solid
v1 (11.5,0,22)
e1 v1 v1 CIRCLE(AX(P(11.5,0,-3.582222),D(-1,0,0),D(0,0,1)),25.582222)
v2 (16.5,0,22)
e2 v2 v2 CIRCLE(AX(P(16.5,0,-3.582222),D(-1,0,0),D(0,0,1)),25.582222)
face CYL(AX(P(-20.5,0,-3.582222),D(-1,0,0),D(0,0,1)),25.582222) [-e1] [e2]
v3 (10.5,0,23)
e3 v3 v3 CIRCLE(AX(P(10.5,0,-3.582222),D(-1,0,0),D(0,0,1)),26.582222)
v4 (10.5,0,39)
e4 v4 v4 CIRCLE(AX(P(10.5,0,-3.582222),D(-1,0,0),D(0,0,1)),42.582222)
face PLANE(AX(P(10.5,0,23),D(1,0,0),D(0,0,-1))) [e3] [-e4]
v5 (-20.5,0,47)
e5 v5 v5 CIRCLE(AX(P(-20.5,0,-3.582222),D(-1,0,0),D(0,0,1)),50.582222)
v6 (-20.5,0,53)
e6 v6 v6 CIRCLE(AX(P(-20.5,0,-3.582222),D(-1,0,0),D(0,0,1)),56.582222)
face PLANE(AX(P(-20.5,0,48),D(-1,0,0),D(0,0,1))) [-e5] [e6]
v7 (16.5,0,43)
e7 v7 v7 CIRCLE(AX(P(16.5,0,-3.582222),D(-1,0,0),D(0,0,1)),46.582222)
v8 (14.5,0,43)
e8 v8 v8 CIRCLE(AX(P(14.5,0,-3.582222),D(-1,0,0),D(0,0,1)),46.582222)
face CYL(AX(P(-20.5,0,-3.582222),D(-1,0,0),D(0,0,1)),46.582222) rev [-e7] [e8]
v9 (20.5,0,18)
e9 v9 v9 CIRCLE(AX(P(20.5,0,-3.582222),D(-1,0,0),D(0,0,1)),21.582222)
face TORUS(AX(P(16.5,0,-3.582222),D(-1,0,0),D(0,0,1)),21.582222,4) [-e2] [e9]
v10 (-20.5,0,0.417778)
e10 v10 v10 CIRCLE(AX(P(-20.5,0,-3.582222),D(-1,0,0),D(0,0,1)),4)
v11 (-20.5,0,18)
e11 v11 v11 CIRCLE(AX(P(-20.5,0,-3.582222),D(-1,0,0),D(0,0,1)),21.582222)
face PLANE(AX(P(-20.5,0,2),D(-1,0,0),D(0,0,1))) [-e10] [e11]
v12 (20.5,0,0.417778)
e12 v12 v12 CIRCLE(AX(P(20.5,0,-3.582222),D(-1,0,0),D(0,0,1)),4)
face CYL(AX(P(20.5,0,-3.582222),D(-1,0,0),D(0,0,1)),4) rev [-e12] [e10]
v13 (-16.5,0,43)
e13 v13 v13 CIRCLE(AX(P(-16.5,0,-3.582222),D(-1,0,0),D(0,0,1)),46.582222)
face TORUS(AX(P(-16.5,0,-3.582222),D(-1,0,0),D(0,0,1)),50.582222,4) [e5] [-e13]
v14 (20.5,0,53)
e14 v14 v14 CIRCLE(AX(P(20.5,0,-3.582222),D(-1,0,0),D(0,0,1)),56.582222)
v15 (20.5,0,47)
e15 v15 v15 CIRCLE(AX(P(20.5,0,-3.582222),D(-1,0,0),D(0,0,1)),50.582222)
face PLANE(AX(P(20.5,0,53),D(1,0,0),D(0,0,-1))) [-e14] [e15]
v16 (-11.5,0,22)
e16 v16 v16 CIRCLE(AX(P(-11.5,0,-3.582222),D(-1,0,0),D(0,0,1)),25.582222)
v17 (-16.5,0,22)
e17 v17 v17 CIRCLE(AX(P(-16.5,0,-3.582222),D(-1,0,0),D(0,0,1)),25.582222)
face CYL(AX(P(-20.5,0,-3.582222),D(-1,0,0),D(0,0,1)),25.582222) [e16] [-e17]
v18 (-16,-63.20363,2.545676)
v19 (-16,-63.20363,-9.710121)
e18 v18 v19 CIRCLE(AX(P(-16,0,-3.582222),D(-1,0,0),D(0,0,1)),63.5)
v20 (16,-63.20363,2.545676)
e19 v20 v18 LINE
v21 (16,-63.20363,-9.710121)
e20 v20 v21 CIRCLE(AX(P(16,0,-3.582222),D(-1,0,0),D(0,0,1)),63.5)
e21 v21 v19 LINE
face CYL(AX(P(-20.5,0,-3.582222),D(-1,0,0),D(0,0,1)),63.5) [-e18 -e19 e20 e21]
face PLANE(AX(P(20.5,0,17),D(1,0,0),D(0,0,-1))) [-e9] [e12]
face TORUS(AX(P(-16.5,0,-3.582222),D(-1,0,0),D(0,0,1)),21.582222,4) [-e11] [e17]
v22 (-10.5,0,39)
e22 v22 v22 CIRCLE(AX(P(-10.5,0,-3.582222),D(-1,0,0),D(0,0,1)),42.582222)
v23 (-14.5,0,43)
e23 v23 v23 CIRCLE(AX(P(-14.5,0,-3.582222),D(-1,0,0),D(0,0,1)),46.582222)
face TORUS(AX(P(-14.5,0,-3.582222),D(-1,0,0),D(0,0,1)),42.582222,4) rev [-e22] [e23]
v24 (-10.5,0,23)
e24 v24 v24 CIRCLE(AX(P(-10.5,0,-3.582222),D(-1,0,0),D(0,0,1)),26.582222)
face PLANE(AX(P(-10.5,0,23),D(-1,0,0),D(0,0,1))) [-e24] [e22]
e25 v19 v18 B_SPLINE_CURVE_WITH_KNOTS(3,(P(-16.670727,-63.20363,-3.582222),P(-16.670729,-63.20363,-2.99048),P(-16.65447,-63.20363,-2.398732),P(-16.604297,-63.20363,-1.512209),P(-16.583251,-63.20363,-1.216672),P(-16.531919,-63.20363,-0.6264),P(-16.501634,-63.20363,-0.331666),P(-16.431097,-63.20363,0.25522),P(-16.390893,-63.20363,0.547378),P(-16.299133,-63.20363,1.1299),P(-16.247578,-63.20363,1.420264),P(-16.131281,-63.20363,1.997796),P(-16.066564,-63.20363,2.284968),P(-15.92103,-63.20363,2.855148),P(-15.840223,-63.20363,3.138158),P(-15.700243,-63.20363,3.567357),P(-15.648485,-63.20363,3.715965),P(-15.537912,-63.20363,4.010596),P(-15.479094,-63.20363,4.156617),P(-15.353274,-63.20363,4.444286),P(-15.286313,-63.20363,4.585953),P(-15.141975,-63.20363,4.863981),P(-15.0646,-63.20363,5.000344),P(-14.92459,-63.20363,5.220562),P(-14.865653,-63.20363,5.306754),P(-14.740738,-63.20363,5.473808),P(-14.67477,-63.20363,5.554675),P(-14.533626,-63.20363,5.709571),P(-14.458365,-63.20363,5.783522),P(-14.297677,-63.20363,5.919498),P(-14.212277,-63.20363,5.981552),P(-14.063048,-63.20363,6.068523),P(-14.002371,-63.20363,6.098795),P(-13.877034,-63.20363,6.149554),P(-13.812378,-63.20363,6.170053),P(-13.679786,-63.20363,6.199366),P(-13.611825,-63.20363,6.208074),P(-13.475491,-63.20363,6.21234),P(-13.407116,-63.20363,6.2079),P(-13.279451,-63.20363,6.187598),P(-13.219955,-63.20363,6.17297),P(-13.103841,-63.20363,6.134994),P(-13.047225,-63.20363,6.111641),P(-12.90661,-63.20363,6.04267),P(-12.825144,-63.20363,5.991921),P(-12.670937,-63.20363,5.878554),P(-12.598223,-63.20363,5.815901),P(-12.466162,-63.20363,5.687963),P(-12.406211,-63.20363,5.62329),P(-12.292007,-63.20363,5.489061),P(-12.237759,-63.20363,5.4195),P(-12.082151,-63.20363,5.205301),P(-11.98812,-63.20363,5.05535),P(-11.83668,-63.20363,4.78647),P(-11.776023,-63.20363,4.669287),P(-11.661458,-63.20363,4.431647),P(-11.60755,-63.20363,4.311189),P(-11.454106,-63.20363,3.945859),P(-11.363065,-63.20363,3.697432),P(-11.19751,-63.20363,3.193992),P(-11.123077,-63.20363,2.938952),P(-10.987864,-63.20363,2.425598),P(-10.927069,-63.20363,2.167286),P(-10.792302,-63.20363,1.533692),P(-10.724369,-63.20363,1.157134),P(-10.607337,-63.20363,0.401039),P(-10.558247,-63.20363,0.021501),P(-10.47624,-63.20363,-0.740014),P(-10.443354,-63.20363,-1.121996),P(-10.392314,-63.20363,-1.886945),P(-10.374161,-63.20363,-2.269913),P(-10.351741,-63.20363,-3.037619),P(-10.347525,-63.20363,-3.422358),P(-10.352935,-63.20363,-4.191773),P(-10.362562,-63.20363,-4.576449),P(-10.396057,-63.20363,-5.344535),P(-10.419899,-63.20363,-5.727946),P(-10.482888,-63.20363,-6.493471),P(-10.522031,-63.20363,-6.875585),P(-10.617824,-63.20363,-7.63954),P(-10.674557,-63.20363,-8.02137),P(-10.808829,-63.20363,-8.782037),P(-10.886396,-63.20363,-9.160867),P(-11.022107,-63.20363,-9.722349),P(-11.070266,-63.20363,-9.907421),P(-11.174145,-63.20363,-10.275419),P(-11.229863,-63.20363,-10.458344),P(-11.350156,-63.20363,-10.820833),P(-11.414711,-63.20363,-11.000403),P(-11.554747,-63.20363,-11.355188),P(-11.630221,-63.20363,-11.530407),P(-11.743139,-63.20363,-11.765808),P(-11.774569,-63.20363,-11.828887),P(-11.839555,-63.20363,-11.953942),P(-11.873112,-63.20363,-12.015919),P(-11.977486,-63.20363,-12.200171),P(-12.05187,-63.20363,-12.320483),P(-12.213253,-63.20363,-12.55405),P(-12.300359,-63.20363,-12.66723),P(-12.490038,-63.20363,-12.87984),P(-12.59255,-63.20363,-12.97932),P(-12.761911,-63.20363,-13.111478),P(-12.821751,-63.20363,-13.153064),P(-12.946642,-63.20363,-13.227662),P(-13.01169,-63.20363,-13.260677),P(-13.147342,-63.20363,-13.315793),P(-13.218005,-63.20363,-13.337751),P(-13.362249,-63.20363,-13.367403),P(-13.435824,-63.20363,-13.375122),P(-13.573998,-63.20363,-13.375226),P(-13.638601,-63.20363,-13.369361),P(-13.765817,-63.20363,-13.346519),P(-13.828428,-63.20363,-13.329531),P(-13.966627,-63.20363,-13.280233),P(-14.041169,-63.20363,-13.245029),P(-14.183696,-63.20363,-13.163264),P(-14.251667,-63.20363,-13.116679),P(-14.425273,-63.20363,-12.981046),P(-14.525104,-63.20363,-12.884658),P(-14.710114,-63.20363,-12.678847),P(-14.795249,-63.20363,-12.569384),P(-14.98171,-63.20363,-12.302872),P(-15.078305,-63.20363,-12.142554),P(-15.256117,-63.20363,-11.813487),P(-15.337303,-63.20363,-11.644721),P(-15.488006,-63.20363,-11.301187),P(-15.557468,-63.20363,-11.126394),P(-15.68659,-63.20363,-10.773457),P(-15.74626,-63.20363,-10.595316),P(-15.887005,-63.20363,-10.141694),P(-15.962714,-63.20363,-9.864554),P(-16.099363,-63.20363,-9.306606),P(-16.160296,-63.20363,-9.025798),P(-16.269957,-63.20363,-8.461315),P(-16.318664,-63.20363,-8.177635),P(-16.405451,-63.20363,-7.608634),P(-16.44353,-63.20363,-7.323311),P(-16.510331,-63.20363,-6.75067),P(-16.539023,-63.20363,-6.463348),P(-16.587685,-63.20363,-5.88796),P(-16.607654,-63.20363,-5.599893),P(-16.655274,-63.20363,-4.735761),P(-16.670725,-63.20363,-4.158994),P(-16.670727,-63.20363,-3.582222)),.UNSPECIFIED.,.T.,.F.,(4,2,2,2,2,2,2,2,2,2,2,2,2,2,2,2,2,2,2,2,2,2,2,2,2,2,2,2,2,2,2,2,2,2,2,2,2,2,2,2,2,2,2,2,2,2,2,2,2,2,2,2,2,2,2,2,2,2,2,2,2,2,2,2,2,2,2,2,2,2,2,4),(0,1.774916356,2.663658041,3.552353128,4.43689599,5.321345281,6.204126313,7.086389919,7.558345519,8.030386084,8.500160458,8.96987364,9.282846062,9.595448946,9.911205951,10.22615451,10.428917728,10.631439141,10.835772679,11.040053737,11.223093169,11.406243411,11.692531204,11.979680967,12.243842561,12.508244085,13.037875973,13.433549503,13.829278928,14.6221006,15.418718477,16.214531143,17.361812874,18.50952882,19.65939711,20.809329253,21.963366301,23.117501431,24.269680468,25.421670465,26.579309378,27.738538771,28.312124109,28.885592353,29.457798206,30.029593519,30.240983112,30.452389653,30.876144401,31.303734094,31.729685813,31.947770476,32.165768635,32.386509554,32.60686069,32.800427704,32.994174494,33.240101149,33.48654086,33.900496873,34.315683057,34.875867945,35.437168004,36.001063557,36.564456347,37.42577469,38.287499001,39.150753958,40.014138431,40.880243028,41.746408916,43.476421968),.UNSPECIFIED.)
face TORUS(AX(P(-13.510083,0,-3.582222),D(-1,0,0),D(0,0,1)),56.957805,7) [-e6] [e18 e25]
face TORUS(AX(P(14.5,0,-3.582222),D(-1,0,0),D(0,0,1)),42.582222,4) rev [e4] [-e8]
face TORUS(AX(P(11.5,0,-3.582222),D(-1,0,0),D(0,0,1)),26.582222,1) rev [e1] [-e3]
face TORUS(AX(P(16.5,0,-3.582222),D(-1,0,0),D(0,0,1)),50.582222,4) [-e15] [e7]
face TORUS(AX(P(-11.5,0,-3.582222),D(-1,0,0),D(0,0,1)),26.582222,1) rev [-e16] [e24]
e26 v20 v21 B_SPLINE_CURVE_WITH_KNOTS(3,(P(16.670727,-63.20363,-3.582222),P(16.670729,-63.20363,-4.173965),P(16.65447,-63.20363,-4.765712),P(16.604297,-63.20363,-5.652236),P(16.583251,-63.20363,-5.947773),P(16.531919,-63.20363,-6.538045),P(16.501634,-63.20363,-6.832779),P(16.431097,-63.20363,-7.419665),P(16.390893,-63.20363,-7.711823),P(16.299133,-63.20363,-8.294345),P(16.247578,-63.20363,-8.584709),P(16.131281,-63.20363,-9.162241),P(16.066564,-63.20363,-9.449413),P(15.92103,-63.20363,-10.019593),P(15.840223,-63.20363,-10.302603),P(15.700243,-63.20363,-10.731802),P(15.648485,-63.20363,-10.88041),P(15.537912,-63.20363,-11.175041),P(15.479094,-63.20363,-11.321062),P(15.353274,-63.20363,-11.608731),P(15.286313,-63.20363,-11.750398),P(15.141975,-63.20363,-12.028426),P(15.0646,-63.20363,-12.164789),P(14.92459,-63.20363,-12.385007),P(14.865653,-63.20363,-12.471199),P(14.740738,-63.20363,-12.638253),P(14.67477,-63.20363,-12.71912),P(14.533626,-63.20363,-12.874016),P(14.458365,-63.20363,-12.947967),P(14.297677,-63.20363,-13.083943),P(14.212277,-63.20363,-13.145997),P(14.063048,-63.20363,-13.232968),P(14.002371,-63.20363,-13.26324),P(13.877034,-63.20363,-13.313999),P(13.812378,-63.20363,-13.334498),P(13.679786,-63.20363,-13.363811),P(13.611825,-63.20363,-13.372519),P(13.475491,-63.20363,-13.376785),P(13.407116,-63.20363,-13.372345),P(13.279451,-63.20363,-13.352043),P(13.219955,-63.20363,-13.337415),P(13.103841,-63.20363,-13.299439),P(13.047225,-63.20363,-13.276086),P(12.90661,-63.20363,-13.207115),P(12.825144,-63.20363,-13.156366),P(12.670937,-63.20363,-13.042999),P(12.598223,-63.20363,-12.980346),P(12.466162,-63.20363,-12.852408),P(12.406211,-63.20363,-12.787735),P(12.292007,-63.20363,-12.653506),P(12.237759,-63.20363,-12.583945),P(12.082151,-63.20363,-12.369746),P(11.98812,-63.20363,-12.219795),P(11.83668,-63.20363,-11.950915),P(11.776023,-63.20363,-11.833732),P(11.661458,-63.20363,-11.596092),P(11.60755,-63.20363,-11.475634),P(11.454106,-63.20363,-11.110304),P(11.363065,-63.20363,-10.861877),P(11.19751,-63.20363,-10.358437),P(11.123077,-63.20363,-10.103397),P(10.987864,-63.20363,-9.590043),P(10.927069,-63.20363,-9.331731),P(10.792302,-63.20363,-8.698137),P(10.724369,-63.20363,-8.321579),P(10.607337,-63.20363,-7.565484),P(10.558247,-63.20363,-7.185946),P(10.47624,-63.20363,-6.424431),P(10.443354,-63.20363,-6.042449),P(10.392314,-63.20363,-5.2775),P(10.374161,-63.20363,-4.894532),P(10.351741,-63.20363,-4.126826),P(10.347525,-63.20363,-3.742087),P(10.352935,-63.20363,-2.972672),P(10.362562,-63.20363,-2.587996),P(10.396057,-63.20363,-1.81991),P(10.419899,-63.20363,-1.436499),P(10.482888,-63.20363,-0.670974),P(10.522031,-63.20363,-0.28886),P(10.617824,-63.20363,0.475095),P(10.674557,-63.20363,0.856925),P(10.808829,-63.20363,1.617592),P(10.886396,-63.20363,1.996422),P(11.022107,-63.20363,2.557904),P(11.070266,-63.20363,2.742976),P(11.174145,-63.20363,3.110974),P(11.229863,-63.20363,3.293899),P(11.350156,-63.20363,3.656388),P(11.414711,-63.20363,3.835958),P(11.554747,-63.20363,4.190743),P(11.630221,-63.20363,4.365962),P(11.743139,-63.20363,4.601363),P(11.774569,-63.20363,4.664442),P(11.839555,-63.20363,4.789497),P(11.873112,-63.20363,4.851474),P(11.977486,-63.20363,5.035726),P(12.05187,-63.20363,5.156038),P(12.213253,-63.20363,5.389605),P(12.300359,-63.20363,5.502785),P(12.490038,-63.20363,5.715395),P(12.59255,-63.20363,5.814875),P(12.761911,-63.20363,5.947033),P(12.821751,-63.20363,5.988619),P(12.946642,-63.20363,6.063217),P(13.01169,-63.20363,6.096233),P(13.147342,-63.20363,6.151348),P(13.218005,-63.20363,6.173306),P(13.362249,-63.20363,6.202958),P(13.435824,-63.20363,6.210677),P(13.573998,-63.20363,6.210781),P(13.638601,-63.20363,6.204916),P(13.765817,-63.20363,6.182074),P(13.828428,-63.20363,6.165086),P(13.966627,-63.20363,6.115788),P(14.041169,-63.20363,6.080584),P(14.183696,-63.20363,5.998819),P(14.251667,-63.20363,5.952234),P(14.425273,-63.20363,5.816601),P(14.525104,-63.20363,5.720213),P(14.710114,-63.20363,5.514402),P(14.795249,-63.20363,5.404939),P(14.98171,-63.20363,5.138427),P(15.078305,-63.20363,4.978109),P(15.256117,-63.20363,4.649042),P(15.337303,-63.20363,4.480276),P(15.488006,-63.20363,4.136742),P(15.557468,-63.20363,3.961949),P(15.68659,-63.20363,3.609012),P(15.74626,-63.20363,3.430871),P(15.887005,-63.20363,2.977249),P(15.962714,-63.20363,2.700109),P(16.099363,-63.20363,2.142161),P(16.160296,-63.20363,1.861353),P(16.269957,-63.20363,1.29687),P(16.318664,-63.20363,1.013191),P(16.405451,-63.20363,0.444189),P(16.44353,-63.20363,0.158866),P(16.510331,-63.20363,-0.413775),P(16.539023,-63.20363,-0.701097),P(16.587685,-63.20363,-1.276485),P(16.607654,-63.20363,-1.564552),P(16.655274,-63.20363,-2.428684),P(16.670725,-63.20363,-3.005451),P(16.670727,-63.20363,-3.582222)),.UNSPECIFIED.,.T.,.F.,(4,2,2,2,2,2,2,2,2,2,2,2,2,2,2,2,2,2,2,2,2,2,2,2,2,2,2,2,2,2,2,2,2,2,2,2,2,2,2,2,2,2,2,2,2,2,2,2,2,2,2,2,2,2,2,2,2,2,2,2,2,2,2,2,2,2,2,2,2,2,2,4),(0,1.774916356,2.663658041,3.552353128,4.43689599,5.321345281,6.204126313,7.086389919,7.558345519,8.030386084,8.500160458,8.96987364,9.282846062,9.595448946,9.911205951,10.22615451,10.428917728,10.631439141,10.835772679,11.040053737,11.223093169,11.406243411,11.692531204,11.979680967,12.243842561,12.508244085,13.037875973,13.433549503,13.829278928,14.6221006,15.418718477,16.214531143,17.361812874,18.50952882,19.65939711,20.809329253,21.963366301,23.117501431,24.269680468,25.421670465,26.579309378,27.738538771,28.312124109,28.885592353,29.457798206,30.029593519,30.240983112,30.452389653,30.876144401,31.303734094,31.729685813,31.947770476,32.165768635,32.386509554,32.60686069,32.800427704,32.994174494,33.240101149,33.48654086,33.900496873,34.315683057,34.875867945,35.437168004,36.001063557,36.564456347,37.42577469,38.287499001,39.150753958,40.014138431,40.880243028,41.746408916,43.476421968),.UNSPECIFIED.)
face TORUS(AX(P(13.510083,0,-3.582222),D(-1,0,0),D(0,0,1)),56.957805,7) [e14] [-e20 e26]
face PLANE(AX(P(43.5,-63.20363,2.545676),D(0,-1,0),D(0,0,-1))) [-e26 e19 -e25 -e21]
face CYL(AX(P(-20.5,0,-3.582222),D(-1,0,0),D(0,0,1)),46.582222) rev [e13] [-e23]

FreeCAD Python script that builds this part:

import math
import FreeCAD as App
import Part
import Sketcher

V = App.Vector


def add_polygon(sketch, points):
    """Adds a closed chain of lines whose ends are joined by coincident constraints."""
    first, n = sketch.GeometryCount, len(points)
    for a, b in zip(points, points[1:] + points[:1]):
        sketch.addGeometry(Part.LineSegment(App.Vector(*a, 0), App.Vector(*b, 0)), False)
    for i in range(n):
        sketch.addConstraint(Sketcher.Constraint("Coincident", first + i, 2, first + (i + 1) % n, 1))

doc = App.newDocument("Part")
body = doc.addObject("PartDesign::Body", "Body")

sketch1 = body.newObject("Sketcher::SketchObject", "Sketch")
sketch1.AttachmentSupport = (doc.getObject("XZ_Plane"), [""])
sketch1.MapMode = "FlatFace"
sketch1.addGeometry([
    Part.LineSegment(V(20.5, 2, 0), V(-20.5, 2, 0)),
    Part.LineSegment(V(-20.5, 2, 0), V(-20.5, 18, 0)),
    Part.ArcOfCircle(Part.Circle(V(-16.5, 18, 0), V(0, 0, 1), 4), math.radians(90), math.radians(180)),
    Part.LineSegment(V(-16.5, 22, 0), V(-11.5, 22, 0)),
    Part.ArcOfCircle(Part.Circle(V(-11.5, 23, 0), V(0, 0, 1), 1), math.radians(-90), math.radians(0)),
    Part.LineSegment(V(-10.5, 23, 0), V(-10.5, 39, 0)),
    Part.ArcOfCircle(Part.Circle(V(-14.5, 39, 0), V(0, 0, 1), 4), math.radians(0), math.radians(90)),
    Part.LineSegment(V(-14.5, 43, 0), V(-16.5, 43, 0)),
    Part.ArcOfCircle(Part.Circle(V(-16.5, 47, 0), V(0, 0, 1), 4), math.radians(180), math.radians(270)),
    Part.LineSegment(V(-20.5, 47, 0), V(-20.5, 53, 0)),
    Part.ArcOfCircle(Part.Circle(V(-13.5, 53.4, 0), V(0, 0, 1), 7), math.radians(111), math.radians(183)),
    Part.LineSegment(V(-16, 59.9, 0), V(16, 59.9, 0)),
    Part.ArcOfCircle(Part.Circle(V(13.5, 53.4, 0), V(0, 0, 1), 7), math.radians(-3), math.radians(69)),
    Part.LineSegment(V(20.5, 53, 0), V(20.5, 47, 0)),
    Part.ArcOfCircle(Part.Circle(V(16.5, 47, 0), V(0, 0, 1), 4), math.radians(-90), math.radians(0)),
    Part.LineSegment(V(16.5, 43, 0), V(14.5, 43, 0)),
    Part.ArcOfCircle(Part.Circle(V(14.5, 39, 0), V(0, 0, 1), 4), math.radians(90), math.radians(180)),
    Part.LineSegment(V(10.5, 39, 0), V(10.5, 23, 0)),
    Part.ArcOfCircle(Part.Circle(V(11.5, 23, 0), V(0, 0, 1), 1), math.radians(-180), math.radians(-90)),
    Part.LineSegment(V(11.5, 22, 0), V(16.5, 22, 0)),
    Part.ArcOfCircle(Part.Circle(V(16.5, 18, 0), V(0, 0, 1), 4), math.radians(0), math.radians(90)),
    Part.LineSegment(V(20.5, 18, 0), V(20.5, 2, 0)),
], False)
sketch1.addGeometry(Part.LineSegment(V(-20.5, -3.6, 0), V(20.5, -3.6, 0)), True)
sketch1.addConstraint([
    Sketcher.Constraint("Coincident", 0, 2, 1, 1),
    Sketcher.Constraint("Tangent", 1, 2, 2, 2),
    Sketcher.Constraint("Tangent", 2, 1, 3, 1),
    Sketcher.Constraint("Tangent", 3, 2, 4, 1),
    Sketcher.Constraint("Tangent", 4, 2, 5, 1),
    Sketcher.Constraint("Tangent", 5, 2, 6, 1),
    Sketcher.Constraint("Tangent", 6, 2, 7, 1),
    Sketcher.Constraint("Tangent", 7, 2, 8, 2),
    Sketcher.Constraint("Tangent", 8, 1, 9, 1),
    Sketcher.Constraint("Coincident", 9, 2, 10, 2),
    Sketcher.Constraint("Coincident", 10, 1, 11, 1),
    Sketcher.Constraint("Coincident", 11, 2, 12, 2),
    Sketcher.Constraint("Coincident", 12, 1, 13, 1),
    Sketcher.Constraint("Tangent", 13, 2, 14, 2),
    Sketcher.Constraint("Tangent", 14, 1, 15, 1),
    Sketcher.Constraint("Tangent", 15, 2, 16, 1),
    Sketcher.Constraint("Tangent", 16, 2, 17, 1),
    Sketcher.Constraint("Tangent", 17, 2, 18, 1),
    Sketcher.Constraint("Tangent", 18, 2, 19, 1),
    Sketcher.Constraint("Tangent", 19, 2, 20, 2),
    Sketcher.Constraint("Tangent", 20, 1, 21, 1),
    Sketcher.Constraint("Coincident", 21, 2, 0, 1),
    Sketcher.Constraint("Horizontal", 0),
    Sketcher.Constraint("Vertical", 1),
    Sketcher.Constraint("Horizontal", 3),
    Sketcher.Constraint("Vertical", 5),
    Sketcher.Constraint("Horizontal", 7),
    Sketcher.Constraint("Vertical", 9),
    Sketcher.Constraint("Horizontal", 11),
    Sketcher.Constraint("Vertical", 13),
    Sketcher.Constraint("Horizontal", 15),
    Sketcher.Constraint("Vertical", 17),
    Sketcher.Constraint("Horizontal", 19),
    Sketcher.Constraint("Vertical", 21),
    Sketcher.Constraint("Horizontal", 22),
    Sketcher.Constraint("Equal", 2, 6),
    Sketcher.Constraint("Equal", 6, 8),
    Sketcher.Constraint("Equal", 10, 12),
    Sketcher.Constraint("Equal", 8, 14),
    Sketcher.Constraint("Equal", 14, 16),
    Sketcher.Constraint("Equal", 4, 18),
    Sketcher.Constraint("Equal", 16, 20),
    Sketcher.Constraint("Symmetric", 10, 3, 12, 3, -2),
    Sketcher.Constraint("Symmetric", 8, 3, 14, 3, -2),
    Sketcher.Constraint("Symmetric", 4, 3, 18, 3, -2),
    Sketcher.Constraint("Vertical", 2, 3, 8, 3),
    Sketcher.Constraint("Vertical", 14, 3, 20, 3),
    Sketcher.Constraint("Vertical", 9, 2, 22, 1),
    Sketcher.Constraint("Vertical", 21, 2, 22, 2),
    Sketcher.Constraint("Equal", 1, 5),
    Sketcher.Constraint("Radius", 2, 4.0),
    Sketcher.Constraint("Radius", 4, 1.0),
    Sketcher.Constraint("Radius", 10, 7.0),
    Sketcher.Constraint("DistanceX", 0, 2, 0, 1, 41.0),
    Sketcher.Constraint("DistanceX", 3, 1, 3, 2, 5.0),
    Sketcher.Constraint("DistanceX", 11, 1, 11, 2, 32.0),
    Sketcher.Constraint("DistanceY", 1, 1, 1, 2, 16.0),
    Sketcher.Constraint("DistanceY", 9, 1, 9, 2, 6.0),
    Sketcher.Constraint("DistanceY", -1, 1, 2, 3, 18.0),
    Sketcher.Constraint("DistanceX", 10, 3, -1, 1, 13.510083),
    Sketcher.Constraint("DistanceY", 22, 1, -1, 1, 3.582222),
])
revolution = body.newObject("PartDesign::Revolution", "Revolution")
revolution.Profile = sketch1
revolution.ReferenceAxis = (sketch1, ["Axis0"])
revolution.Angle = 360

sketch2 = body.newObject("Sketcher::SketchObject", "Sketch001")
sketch2.AttachmentSupport = (doc.getObject("YZ_Plane"), [""])
sketch2.MapMode = "FlatFace"
sketch2.AttachmentOffset = App.Placement(V(0, 0, 20.5), App.Rotation())
sketch2.addGeometry([
    Part.Circle(V(0, -3.6, 0), V(0, 0, 1), 5.6),
    Part.Circle(V(0, -3.6, 0), V(0, 0, 1), 4),
], False)
sketch2.addConstraint([
    Sketcher.Constraint("Coincident", 1, 3, 0, 3),
    Sketcher.Constraint("PointOnObject", 0, 3, -2),
    Sketcher.Constraint("Diameter", 1, 8.0),
    Sketcher.Constraint("Diameter", 0, 11.164445),
    Sketcher.Constraint("DistanceY", 0, 3, -1, 1, 3.582222),
])
pad1 = body.newObject("PartDesign::Pad", "Pad")
pad1.Profile = sketch2
pad1.Length = 41
pad1.Reversed = True

sketch3 = body.newObject("Sketcher::SketchObject", "Sketch002")
sketch3.AttachmentSupport = (doc.getObject("YZ_Plane"), [""])
sketch3.MapMode = "FlatFace"
add_polygon(sketch3, [(-63.2, 2.5), (-63.8, 2.5), (-63.8, -9.7), (-63.2, -9.7)])
sketch3.addConstraint([
    Sketcher.Constraint("Horizontal", 0),
    Sketcher.Constraint("Vertical", 1),
    Sketcher.Constraint("Horizontal", 2),
    Sketcher.Constraint("Vertical", 3),
    Sketcher.Constraint("DistanceX", 0, 2, 0, 1, 0.59274),
    Sketcher.Constraint("DistanceY", 1, 2, 1, 1, 12.255797),
    Sketcher.Constraint("DistanceX", 0, 2, -1, 1, 63.79637),
    Sketcher.Constraint("DistanceY", 1, 2, -1, 1, 9.710121),
])
pocket1 = body.newObject("PartDesign::Pocket", "Pocket")
pocket1.Profile = sketch3
pocket1.Length = 87
pocket1.Midplane = True

doc.recompute()
